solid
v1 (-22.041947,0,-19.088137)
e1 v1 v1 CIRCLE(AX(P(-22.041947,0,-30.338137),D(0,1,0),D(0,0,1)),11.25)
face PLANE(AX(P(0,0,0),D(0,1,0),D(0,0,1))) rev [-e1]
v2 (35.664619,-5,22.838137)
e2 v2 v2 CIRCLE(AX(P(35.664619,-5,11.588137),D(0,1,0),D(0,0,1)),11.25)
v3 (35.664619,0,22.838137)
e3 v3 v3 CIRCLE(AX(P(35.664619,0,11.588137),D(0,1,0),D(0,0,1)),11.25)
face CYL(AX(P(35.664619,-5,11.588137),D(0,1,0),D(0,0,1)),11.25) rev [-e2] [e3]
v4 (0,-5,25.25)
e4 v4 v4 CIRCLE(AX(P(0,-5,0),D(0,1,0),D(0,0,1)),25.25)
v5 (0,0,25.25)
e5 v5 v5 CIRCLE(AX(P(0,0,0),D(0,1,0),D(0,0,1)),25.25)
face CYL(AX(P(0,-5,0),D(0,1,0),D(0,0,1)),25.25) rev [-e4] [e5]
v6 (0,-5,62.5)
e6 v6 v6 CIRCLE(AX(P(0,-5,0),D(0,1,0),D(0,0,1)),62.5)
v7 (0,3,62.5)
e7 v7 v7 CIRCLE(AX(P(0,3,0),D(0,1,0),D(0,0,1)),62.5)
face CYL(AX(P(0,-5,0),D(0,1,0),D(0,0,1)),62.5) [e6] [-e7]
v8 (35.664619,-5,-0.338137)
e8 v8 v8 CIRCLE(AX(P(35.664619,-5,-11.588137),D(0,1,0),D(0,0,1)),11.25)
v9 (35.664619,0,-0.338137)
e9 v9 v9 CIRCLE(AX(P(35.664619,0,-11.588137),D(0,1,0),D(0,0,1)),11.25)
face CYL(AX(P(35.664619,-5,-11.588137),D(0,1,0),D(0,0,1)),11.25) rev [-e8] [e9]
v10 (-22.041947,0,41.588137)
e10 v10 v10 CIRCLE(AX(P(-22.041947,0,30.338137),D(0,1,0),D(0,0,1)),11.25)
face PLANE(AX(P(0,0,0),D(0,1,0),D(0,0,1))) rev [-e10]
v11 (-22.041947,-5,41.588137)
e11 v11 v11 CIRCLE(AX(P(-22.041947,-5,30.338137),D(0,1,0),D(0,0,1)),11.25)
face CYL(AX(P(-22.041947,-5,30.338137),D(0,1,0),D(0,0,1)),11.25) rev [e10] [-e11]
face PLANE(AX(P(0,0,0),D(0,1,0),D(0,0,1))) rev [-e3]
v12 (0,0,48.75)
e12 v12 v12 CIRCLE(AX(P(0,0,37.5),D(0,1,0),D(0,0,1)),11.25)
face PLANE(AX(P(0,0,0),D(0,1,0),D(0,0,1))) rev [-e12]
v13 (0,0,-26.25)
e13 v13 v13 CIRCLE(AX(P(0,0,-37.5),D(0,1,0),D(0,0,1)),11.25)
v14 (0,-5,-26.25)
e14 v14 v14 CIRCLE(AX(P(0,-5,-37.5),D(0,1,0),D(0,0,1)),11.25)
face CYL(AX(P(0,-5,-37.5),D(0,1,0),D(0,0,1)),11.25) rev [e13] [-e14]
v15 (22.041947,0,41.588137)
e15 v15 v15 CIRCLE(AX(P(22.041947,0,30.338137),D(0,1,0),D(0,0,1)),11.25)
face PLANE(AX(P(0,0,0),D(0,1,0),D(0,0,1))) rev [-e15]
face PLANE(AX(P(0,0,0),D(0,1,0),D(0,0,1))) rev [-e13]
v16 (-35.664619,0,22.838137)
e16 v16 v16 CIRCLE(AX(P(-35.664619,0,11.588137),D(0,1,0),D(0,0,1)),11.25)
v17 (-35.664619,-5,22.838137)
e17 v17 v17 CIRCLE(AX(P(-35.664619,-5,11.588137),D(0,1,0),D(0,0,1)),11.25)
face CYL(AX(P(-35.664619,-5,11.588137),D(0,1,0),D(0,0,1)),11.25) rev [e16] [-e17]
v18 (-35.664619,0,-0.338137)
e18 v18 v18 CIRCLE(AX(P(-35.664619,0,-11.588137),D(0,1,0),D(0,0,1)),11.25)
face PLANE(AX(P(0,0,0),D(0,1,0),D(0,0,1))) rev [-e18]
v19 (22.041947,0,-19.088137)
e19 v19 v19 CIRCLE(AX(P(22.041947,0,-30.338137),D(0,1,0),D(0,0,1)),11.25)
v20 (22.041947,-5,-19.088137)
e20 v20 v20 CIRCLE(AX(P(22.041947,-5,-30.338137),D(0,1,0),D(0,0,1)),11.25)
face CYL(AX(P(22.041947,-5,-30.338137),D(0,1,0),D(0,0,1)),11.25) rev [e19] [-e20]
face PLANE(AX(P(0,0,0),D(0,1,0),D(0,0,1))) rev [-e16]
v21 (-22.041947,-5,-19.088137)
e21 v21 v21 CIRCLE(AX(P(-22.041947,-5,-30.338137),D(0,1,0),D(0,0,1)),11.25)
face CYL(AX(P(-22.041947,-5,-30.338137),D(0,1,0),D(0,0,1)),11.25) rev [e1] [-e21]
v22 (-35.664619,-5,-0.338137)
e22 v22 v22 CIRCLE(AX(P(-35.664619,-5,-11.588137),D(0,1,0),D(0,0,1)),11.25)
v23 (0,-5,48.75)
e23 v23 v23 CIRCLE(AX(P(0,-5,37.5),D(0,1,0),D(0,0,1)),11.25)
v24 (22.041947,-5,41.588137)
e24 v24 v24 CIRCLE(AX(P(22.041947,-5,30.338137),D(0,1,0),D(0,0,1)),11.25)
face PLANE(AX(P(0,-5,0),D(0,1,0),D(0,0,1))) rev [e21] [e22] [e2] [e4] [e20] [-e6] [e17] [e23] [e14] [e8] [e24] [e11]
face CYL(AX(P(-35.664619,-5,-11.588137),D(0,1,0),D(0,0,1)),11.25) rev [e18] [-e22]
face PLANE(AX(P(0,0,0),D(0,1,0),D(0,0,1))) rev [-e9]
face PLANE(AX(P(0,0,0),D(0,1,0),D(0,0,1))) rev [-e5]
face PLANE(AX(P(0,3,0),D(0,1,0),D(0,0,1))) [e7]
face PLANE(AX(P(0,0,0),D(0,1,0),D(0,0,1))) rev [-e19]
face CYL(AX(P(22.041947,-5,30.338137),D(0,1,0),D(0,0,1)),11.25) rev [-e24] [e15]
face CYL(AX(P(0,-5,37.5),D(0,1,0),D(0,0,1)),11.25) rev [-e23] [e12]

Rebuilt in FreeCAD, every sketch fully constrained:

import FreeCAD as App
import Part
import Sketcher
from FreeCAD import Vector

doc = App.newDocument("Part")
body = doc.addObject("PartDesign::Body", "Body")

# Sketch on XZ plane
sketch1 = body.newObject("Sketcher::SketchObject", "Sketch")
sketch1.AttachmentSupport = (doc.getObject("XZ_Plane"), [""])
sketch1.MapMode = "FlatFace"
sketch1.addGeometry(Part.Circle(Vector(0, 0, 0), Vector(0, 0, 1), 62), False)
sketch1.addGeometry(Part.Circle(Vector(-36, -12, 0), Vector(0, 0, 1), 11), False)
sketch1.addGeometry(Part.Circle(Vector(-22, -30, 0), Vector(0, 0, 1), 11), False)
sketch1.addGeometry(Part.Circle(Vector(0, -38, 0), Vector(0, 0, 1), 11), False)
sketch1.addGeometry(Part.Circle(Vector(-36, 12, 0), Vector(0, 0, 1), 11), False)
sketch1.addGeometry(Part.Circle(Vector(0, 0, 0), Vector(0, 0, 1), 25), False)
sketch1.addGeometry(Part.Circle(Vector(-22, 30, 0), Vector(0, 0, 1), 11), False)
sketch1.addGeometry(Part.Circle(Vector(22, -30, 0), Vector(0, 0, 1), 11), False)
sketch1.addGeometry(Part.Circle(Vector(36, -12, 0), Vector(0, 0, 1), 11), False)
sketch1.addGeometry(Part.Circle(Vector(0, 38, 0), Vector(0, 0, 1), 11), False)
sketch1.addGeometry(Part.Circle(Vector(22, 30, 0), Vector(0, 0, 1), 11), False)
sketch1.addGeometry(Part.Circle(Vector(36, 12, 0), Vector(0, 0, 1), 11), False)
sketch1.addConstraint(Sketcher.Constraint("Coincident", 0, 3, -1, 1))
sketch1.addConstraint(Sketcher.Constraint("Coincident", 5, 3, -1, 1))
sketch1.addConstraint(Sketcher.Constraint("Equal", 1, 2))
sketch1.addConstraint(Sketcher.Constraint("Equal", 2, 3))
sketch1.addConstraint(Sketcher.Constraint("Equal", 3, 4))
sketch1.addConstraint(Sketcher.Constraint("Equal", 4, 6))
sketch1.addConstraint(Sketcher.Constraint("Equal", 6, 7))
sketch1.addConstraint(Sketcher.Constraint("Equal", 7, 8))
sketch1.addConstraint(Sketcher.Constraint("Equal", 8, 9))
sketch1.addConstraint(Sketcher.Constraint("Equal", 9, 10))
sketch1.addConstraint(Sketcher.Constraint("Equal", 10, 11))
sketch1.addConstraint(Sketcher.Constraint("Symmetric", 6, 3, 7, 3, -1, 1))
sketch1.addConstraint(Sketcher.Constraint("Symmetric", 4, 3, 8, 3, -1, 1))
sketch1.addConstraint(Sketcher.Constraint("Symmetric", 3, 3, 9, 3, -1, 1))
sketch1.addConstraint(Sketcher.Constraint("Symmetric", 2, 3, 10, 3, -1, 1))
sketch1.addConstraint(Sketcher.Constraint("Symmetric", 1, 3, 11, 3, -1, 1))
sketch1.addConstraint(Sketcher.Constraint("Symmetric", 2, 3, 7, 3, -2))
sketch1.addConstraint(Sketcher.Constraint("Symmetric", 1, 3, 8, 3, -2))
sketch1.addConstraint(Sketcher.Constraint("PointOnObject", 3, 3, -2))
sketch1.addConstraint(Sketcher.Constraint("Diameter", 0, 125.0))
sketch1.addConstraint(Sketcher.Constraint("Diameter", 1, 22.5))
sketch1.addConstraint(Sketcher.Constraint("Diameter", 5, 50.5))
sketch1.addConstraint(Sketcher.Constraint("DistanceY", 3, 3, -1, 1, 37.5))
sketch1.addConstraint(Sketcher.Constraint("DistanceY", 2, 3, 1, 3, 18.75))
sketch1.addConstraint(Sketcher.Constraint("DistanceX", 1, 3, -1, 1, 35.664619))
sketch1.addConstraint(Sketcher.Constraint("DistanceY", 1, 3, -1, 1, 11.588137))
sketch1.addConstraint(Sketcher.Constraint("DistanceX", 2, 3, -1, 1, 22.041947))
pad1 = body.newObject("PartDesign::Pad", "Pad")
pad1.Profile = sketch1
pad1.Length = 5

# Sketch on XZ plane
sketch2 = body.newObject("Sketcher::SketchObject", "Sketch001")
sketch2.AttachmentSupport = (doc.getObject("XZ_Plane"), [""])
sketch2.MapMode = "FlatFace"
sketch2.AttachmentOffset = App.Placement(Vector(0, 0, -3), App.Rotation())
sketch2.addGeometry(Part.Circle(Vector(0, 0, 0), Vector(0, 0, 1), 62), False)
sketch2.addConstraint(Sketcher.Constraint("Coincident", 0, 3, -1, 1))
sketch2.addConstraint(Sketcher.Constraint("Diameter", 0, 125.0))
pad2 = body.newObject("PartDesign::Pad", "Pad001")
pad2.Profile = sketch2
pad2.Length = 3

doc.recompute()
